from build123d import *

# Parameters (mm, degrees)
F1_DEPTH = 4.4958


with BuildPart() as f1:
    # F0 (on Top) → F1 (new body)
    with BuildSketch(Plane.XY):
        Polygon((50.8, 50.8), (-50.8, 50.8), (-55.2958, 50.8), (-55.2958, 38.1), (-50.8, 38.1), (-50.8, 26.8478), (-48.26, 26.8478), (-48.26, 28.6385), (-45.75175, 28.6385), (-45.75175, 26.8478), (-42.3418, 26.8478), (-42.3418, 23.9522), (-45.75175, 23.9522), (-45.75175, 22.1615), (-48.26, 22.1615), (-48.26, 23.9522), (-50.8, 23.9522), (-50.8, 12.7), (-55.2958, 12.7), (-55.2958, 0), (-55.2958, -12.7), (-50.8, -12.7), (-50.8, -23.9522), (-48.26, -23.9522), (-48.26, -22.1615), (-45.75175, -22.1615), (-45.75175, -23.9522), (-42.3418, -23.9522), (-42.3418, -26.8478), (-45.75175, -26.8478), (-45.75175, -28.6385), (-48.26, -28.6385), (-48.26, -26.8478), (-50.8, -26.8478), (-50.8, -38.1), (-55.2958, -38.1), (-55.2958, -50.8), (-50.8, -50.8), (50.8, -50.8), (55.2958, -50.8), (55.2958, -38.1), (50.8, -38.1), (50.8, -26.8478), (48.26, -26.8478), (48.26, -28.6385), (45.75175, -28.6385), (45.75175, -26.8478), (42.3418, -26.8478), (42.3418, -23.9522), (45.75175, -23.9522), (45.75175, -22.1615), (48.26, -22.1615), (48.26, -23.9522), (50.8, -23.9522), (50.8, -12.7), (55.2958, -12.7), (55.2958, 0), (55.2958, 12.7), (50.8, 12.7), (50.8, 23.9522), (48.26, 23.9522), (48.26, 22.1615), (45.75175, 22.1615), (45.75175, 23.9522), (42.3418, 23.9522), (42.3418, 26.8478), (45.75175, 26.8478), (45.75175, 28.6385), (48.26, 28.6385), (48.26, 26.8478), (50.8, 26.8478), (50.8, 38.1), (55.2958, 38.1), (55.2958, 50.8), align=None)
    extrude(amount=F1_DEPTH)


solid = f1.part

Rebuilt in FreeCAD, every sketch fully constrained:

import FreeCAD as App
import Part
import Sketcher
from FreeCAD import Vector
Q = App.Units.Quantity

doc = App.newDocument("Part")
params = doc.addObject("Spreadsheet::Sheet", "Params")
for row, (alias, value) in enumerate([
    ("sketch1_height", "1 in"),
    ("sketch1_width", "0.1 in"),
    ("sketch1_height2", "0.5 in"),
    ("sketch1_width2", "0.177 in"),
    ("sketch1_height3", "0.443 in"),
    ("pad1_length", "0.177 in"),
], start=1):
    params.set(f"A{row}", alias)
    params.set(f"B{row}", "=" + value)
    params.setAlias(f"B{row}", alias)

body = doc.addObject("PartDesign::Body", "Body")

sketch1 = body.newObject("Sketcher::SketchObject", "Sketch")
sketch1.AttachmentSupport = (doc.getObject("XY_Plane"), [""])
sketch1.MapMode = "FlatFace"
sketch1.addGeometry([
    Part.LineSegment(Vector(-55.2958, 50.8, 0), Vector(-55.2958, 38.1, 0)),
    Part.LineSegment(Vector(-55.2958, 38.1, 0), Vector(-50.8, 38.1, 0)),
    Part.LineSegment(Vector(-50.8, 38.1, 0), Vector(-50.8, 26.8478, 0)),
    Part.LineSegment(Vector(-50.8, 26.8478, 0), Vector(-48.26, 26.8478, 0)),
    Part.LineSegment(Vector(-48.26, 26.8478, 0), Vector(-48.26, 28.6385, 0)),
    Part.LineSegment(Vector(-48.26, 28.6385, 0), Vector(-45.75175, 28.6385, 0)),
    Part.LineSegment(Vector(-45.75175, 28.6385, 0), Vector(-45.75175, 26.8478, 0)),
    Part.LineSegment(Vector(-45.75175, 26.8478, 0), Vector(-42.3418, 26.8478, 0)),
    Part.LineSegment(Vector(-42.3418, 26.8478, 0), Vector(-42.3418, 23.9522, 0)),
    Part.LineSegment(Vector(-42.3418, 23.9522, 0), Vector(-45.75175, 23.9522, 0)),
    Part.LineSegment(Vector(-45.75175, 23.9522, 0), Vector(-45.75175, 22.1615, 0)),
    Part.LineSegment(Vector(-45.75175, 22.1615, 0), Vector(-48.26, 22.1615, 0)),
    Part.LineSegment(Vector(-48.26, 22.1615, 0), Vector(-48.26, 23.9522, 0)),
    Part.LineSegment(Vector(-48.26, 23.9522, 0), Vector(-50.8, 23.9522, 0)),
    Part.LineSegment(Vector(-50.8, 23.9522, 0), Vector(-50.8, 12.7, 0)),
    Part.LineSegment(Vector(-50.8, 12.7, 0), Vector(-55.2958, 12.7, 0)),
    Part.LineSegment(Vector(-55.2958, 12.7, 0), Vector(-55.2958, -12.7, 0)),
    Part.LineSegment(Vector(-55.2958, -12.7, 0), Vector(-50.8, -12.7, 0)),
    Part.LineSegment(Vector(-50.8, -12.7, 0), Vector(-50.8, -23.9522, 0)),
    Part.LineSegment(Vector(-50.8, -23.9522, 0), Vector(-48.26, -23.9522, 0)),
    Part.LineSegment(Vector(-48.26, -23.9522, 0), Vector(-48.26, -22.1615, 0)),
    Part.LineSegment(Vector(-48.26, -22.1615, 0), Vector(-45.75175, -22.1615, 0)),
    Part.LineSegment(Vector(-45.75175, -22.1615, 0), Vector(-45.75175, -23.9522, 0)),
    Part.LineSegment(Vector(-45.75175, -23.9522, 0), Vector(-42.3418, -23.9522, 0)),
    Part.LineSegment(Vector(-42.3418, -23.9522, 0), Vector(-42.3418, -26.8478, 0)),
    Part.LineSegment(Vector(-42.3418, -26.8478, 0), Vector(-45.75175, -26.8478, 0)),
    Part.LineSegment(Vector(-45.75175, -26.8478, 0), Vector(-45.75175, -28.6385, 0)),
    Part.LineSegment(Vector(-45.75175, -28.6385, 0), Vector(-48.26, -28.6385, 0)),
    Part.LineSegment(Vector(-48.26, -28.6385, 0), Vector(-48.26, -26.8478, 0)),
    Part.LineSegment(Vector(-48.26, -26.8478, 0), Vector(-50.8, -26.8478, 0)),
    Part.LineSegment(Vector(-50.8, -26.8478, 0), Vector(-50.8, -38.1, 0)),
    Part.LineSegment(Vector(-50.8, -38.1, 0), Vector(-55.2958, -38.1, 0)),
    Part.LineSegment(Vector(-55.2958, -38.1, 0), Vector(-55.2958, -50.8, 0)),
    Part.LineSegment(Vector(-55.2958, -50.8, 0), Vector(55.2958, -50.8, 0)),
    Part.LineSegment(Vector(55.2958, -50.8, 0), Vector(55.2958, -38.1, 0)),
    Part.LineSegment(Vector(55.2958, -38.1, 0), Vector(50.8, -38.1, 0)),
    Part.LineSegment(Vector(50.8, -38.1, 0), Vector(50.8, -26.8478, 0)),
    Part.LineSegment(Vector(50.8, -26.8478, 0), Vector(48.26, -26.8478, 0)),
    Part.LineSegment(Vector(48.26, -26.8478, 0), Vector(48.26, -28.6385, 0)),
    Part.LineSegment(Vector(48.26, -28.6385, 0), Vector(45.75175, -28.6385, 0)),
    Part.LineSegment(Vector(45.75175, -28.6385, 0), Vector(45.75175, -26.8478, 0)),
    Part.LineSegment(Vector(45.75175, -26.8478, 0), Vector(42.3418, -26.8478, 0)),
    Part.LineSegment(Vector(42.3418, -26.8478, 0), Vector(42.3418, -23.9522, 0)),
    Part.LineSegment(Vector(42.3418, -23.9522, 0), Vector(45.75175, -23.9522, 0)),
    Part.LineSegment(Vector(45.75175, -23.9522, 0), Vector(45.75175, -22.1615, 0)),
    Part.LineSegment(Vector(45.75175, -22.1615, 0), Vector(48.26, -22.1615, 0)),
    Part.LineSegment(Vector(48.26, -22.1615, 0), Vector(48.26, -23.9522, 0)),
    Part.LineSegment(Vector(48.26, -23.9522, 0), Vector(50.8, -23.9522, 0)),
    Part.LineSegment(Vector(50.8, -23.9522, 0), Vector(50.8, -12.7, 0)),
    Part.LineSegment(Vector(50.8, -12.7, 0), Vector(55.2958, -12.7, 0)),
    Part.LineSegment(Vector(55.2958, -12.7, 0), Vector(55.2958, 12.7, 0)),
    Part.LineSegment(Vector(55.2958, 12.7, 0), Vector(50.8, 12.7, 0)),
    Part.LineSegment(Vector(50.8, 12.7, 0), Vector(50.8, 23.9522, 0)),
    Part.LineSegment(Vector(50.8, 23.9522, 0), Vector(48.26, 23.9522, 0)),
    Part.LineSegment(Vector(48.26, 23.9522, 0), Vector(48.26, 22.1615, 0)),
    Part.LineSegment(Vector(48.26, 22.1615, 0), Vector(45.75175, 22.1615, 0)),
    Part.LineSegment(Vector(45.75175, 22.1615, 0), Vector(45.75175, 23.9522, 0)),
    Part.LineSegment(Vector(45.75175, 23.9522, 0), Vector(42.3418, 23.9522, 0)),
    Part.LineSegment(Vector(42.3418, 23.9522, 0), Vector(42.3418, 26.8478, 0)),
    Part.LineSegment(Vector(42.3418, 26.8478, 0), Vector(45.75175, 26.8478, 0)),
    Part.LineSegment(Vector(45.75175, 26.8478, 0), Vector(45.75175, 28.6385, 0)),
    Part.LineSegment(Vector(45.75175, 28.6385, 0), Vector(48.26, 28.6385, 0)),
    Part.LineSegment(Vector(48.26, 28.6385, 0), Vector(48.26, 26.8478, 0)),
    Part.LineSegment(Vector(48.26, 26.8478, 0), Vector(50.8, 26.8478, 0)),
    Part.LineSegment(Vector(50.8, 26.8478, 0), Vector(50.8, 38.1, 0)),
    Part.LineSegment(Vector(50.8, 38.1, 0), Vector(55.2958, 38.1, 0)),
    Part.LineSegment(Vector(55.2958, 38.1, 0), Vector(55.2958, 50.8, 0)),
    Part.LineSegment(Vector(55.2958, 50.8, 0), Vector(-55.2958, 50.8, 0)),
], False)
sketch1.addConstraint([
    Sketcher.Constraint("Coincident", 0, 2, 1, 1),
    Sketcher.Constraint("Coincident", 1, 2, 2, 1),
    Sketcher.Constraint("Coincident", 2, 2, 3, 1),
    Sketcher.Constraint("Coincident", 3, 2, 4, 1),
    Sketcher.Constraint("Coincident", 4, 2, 5, 1),
    Sketcher.Constraint("Coincident", 5, 2, 6, 1),
    Sketcher.Constraint("Coincident", 6, 2, 7, 1),
    Sketcher.Constraint("Coincident", 7, 2, 8, 1),
    Sketcher.Constraint("Coincident", 8, 2, 9, 1),
    Sketcher.Constraint("Coincident", 9, 2, 10, 1),
    Sketcher.Constraint("Coincident", 10, 2, 11, 1),
    Sketcher.Constraint("Coincident", 11, 2, 12, 1),
    Sketcher.Constraint("Coincident", 12, 2, 13, 1),
    Sketcher.Constraint("Coincident", 13, 2, 14, 1),
    Sketcher.Constraint("Coincident", 14, 2, 15, 1),
    Sketcher.Constraint("Coincident", 15, 2, 16, 1),
    Sketcher.Constraint("Coincident", 16, 2, 17, 1),
    Sketcher.Constraint("Coincident", 17, 2, 18, 1),
    Sketcher.Constraint("Coincident", 18, 2, 19, 1),
    Sketcher.Constraint("Coincident", 19, 2, 20, 1),
    Sketcher.Constraint("Coincident", 20, 2, 21, 1),
    Sketcher.Constraint("Coincident", 21, 2, 22, 1),
    Sketcher.Constraint("Coincident", 22, 2, 23, 1),
    Sketcher.Constraint("Coincident", 23, 2, 24, 1),
    Sketcher.Constraint("Coincident", 24, 2, 25, 1),
    Sketcher.Constraint("Coincident", 25, 2, 26, 1),
    Sketcher.Constraint("Coincident", 26, 2, 27, 1),
    Sketcher.Constraint("Coincident", 27, 2, 28, 1),
    Sketcher.Constraint("Coincident", 28, 2, 29, 1),
    Sketcher.Constraint("Coincident", 29, 2, 30, 1),
    Sketcher.Constraint("Coincident", 30, 2, 31, 1),
    Sketcher.Constraint("Coincident", 31, 2, 32, 1),
    Sketcher.Constraint("Coincident", 32, 2, 33, 1),
    Sketcher.Constraint("Coincident", 33, 2, 34, 1),
    Sketcher.Constraint("Coincident", 34, 2, 35, 1),
    Sketcher.Constraint("Coincident", 35, 2, 36, 1),
    Sketcher.Constraint("Coincident", 36, 2, 37, 1),
    Sketcher.Constraint("Coincident", 37, 2, 38, 1),
    Sketcher.Constraint("Coincident", 38, 2, 39, 1),
    Sketcher.Constraint("Coincident", 39, 2, 40, 1),
    Sketcher.Constraint("Coincident", 40, 2, 41, 1),
    Sketcher.Constraint("Coincident", 41, 2, 42, 1),
    Sketcher.Constraint("Coincident", 42, 2, 43, 1),
    Sketcher.Constraint("Coincident", 43, 2, 44, 1),
    Sketcher.Constraint("Coincident", 44, 2, 45, 1),
    Sketcher.Constraint("Coincident", 45, 2, 46, 1),
    Sketcher.Constraint("Coincident", 46, 2, 47, 1),
    Sketcher.Constraint("Coincident", 47, 2, 48, 1),
    Sketcher.Constraint("Coincident", 48, 2, 49, 1),
    Sketcher.Constraint("Coincident", 49, 2, 50, 1),
    Sketcher.Constraint("Coincident", 50, 2, 51, 1),
    Sketcher.Constraint("Coincident", 51, 2, 52, 1),
    Sketcher.Constraint("Coincident", 52, 2, 53, 1),
    Sketcher.Constraint("Coincident", 53, 2, 54, 1),
    Sketcher.Constraint("Coincident", 54, 2, 55, 1),
    Sketcher.Constraint("Coincident", 55, 2, 56, 1),
    Sketcher.Constraint("Coincident", 56, 2, 57, 1),
    Sketcher.Constraint("Coincident", 57, 2, 58, 1),
    Sketcher.Constraint("Coincident", 58, 2, 59, 1),
    Sketcher.Constraint("Coincident", 59, 2, 60, 1),
    Sketcher.Constraint("Coincident", 60, 2, 61, 1),
    Sketcher.Constraint("Coincident", 61, 2, 62, 1),
    Sketcher.Constraint("Coincident", 62, 2, 63, 1),
    Sketcher.Constraint("Coincident", 63, 2, 64, 1),
    Sketcher.Constraint("Coincident", 64, 2, 65, 1),
    Sketcher.Constraint("Coincident", 65, 2, 66, 1),
    Sketcher.Constraint("Coincident", 66, 2, 67, 1),
    Sketcher.Constraint("Coincident", 67, 2, 0, 1),
    Sketcher.Constraint("Vertical", 0),
    Sketcher.Constraint("Horizontal", 1),
    Sketcher.Constraint("Vertical", 2),
    Sketcher.Constraint("Horizontal", 3),
    Sketcher.Constraint("Vertical", 4),
    Sketcher.Constraint("Horizontal", 5),
    Sketcher.Constraint("Vertical", 6),
    Sketcher.Constraint("Horizontal", 7),
    Sketcher.Constraint("Vertical", 8),
    Sketcher.Constraint("Horizontal", 9),
    Sketcher.Constraint("Vertical", 10),
    Sketcher.Constraint("Horizontal", 11),
    Sketcher.Constraint("Vertical", 12),
    Sketcher.Constraint("Horizontal", 13),
    Sketcher.Constraint("Vertical", 14),
    Sketcher.Constraint("Horizontal", 15),
    Sketcher.Constraint("Vertical", 16),
    Sketcher.Constraint("Horizontal", 17),
    Sketcher.Constraint("Vertical", 18),
    Sketcher.Constraint("Horizontal", 19),
    Sketcher.Constraint("Vertical", 20),
    Sketcher.Constraint("Horizontal", 21),
    Sketcher.Constraint("Vertical", 22),
    Sketcher.Constraint("Horizontal", 23),
    Sketcher.Constraint("Vertical", 24),
    Sketcher.Constraint("Horizontal", 25),
    Sketcher.Constraint("Vertical", 26),
    Sketcher.Constraint("Horizontal", 27),
    Sketcher.Constraint("Vertical", 28),
    Sketcher.Constraint("Horizontal", 29),
    Sketcher.Constraint("Vertical", 30),
    Sketcher.Constraint("Horizontal", 31),
    Sketcher.Constraint("Vertical", 32),
    Sketcher.Constraint("Horizontal", 33),
    Sketcher.Constraint("Vertical", 34),
    Sketcher.Constraint("Horizontal", 35),
    Sketcher.Constraint("Vertical", 36),
    Sketcher.Constraint("Horizontal", 37),
    Sketcher.Constraint("Vertical", 38),
    Sketcher.Constraint("Horizontal", 39),
    Sketcher.Constraint("Vertical", 40),
    Sketcher.Constraint("Horizontal", 41),
    Sketcher.Constraint("Vertical", 42),
    Sketcher.Constraint("Horizontal", 43),
    Sketcher.Constraint("Vertical", 44),
    Sketcher.Constraint("Horizontal", 45),
    Sketcher.Constraint("Vertical", 46),
    Sketcher.Constraint("Horizontal", 47),
    Sketcher.Constraint("Vertical", 48),
    Sketcher.Constraint("Horizontal", 49),
    Sketcher.Constraint("Vertical", 50),
    Sketcher.Constraint("Horizontal", 51),
    Sketcher.Constraint("Vertical", 52),
    Sketcher.Constraint("Horizontal", 53),
    Sketcher.Constraint("Vertical", 54),
    Sketcher.Constraint("Horizontal", 55),
    Sketcher.Constraint("Vertical", 56),
    Sketcher.Constraint("Horizontal", 57),
    Sketcher.Constraint("Vertical", 58),
    Sketcher.Constraint("Horizontal", 59),
    Sketcher.Constraint("Vertical", 60),
    Sketcher.Constraint("Horizontal", 61),
    Sketcher.Constraint("Vertical", 62),
    Sketcher.Constraint("Horizontal", 63),
    Sketcher.Constraint("Vertical", 64),
    Sketcher.Constraint("Horizontal", 65),
    Sketcher.Constraint("Vertical", 66),
    Sketcher.Constraint("Horizontal", 67),
    Sketcher.Constraint("Symmetric", 0, 2, 34, 2, -1, 1),
    Sketcher.Constraint("Symmetric", 2, 2, 36, 2, -1, 1),
    Sketcher.Constraint("Symmetric", 4, 2, 38, 2, -1, 1),
    Sketcher.Constraint("Symmetric", 6, 2, 40, 2, -1, 1),
    Sketcher.Constraint("Symmetric", 8, 2, 42, 2, -1, 1),
    Sketcher.Constraint("Symmetric", 10, 2, 44, 2, -1, 1),
    Sketcher.Constraint("Symmetric", 12, 2, 46, 2, -1, 1),
    Sketcher.Constraint("Symmetric", 14, 2, 48, 2, -1, 1),
    Sketcher.Constraint("Symmetric", 16, 2, 50, 2, -1, 1),
    Sketcher.Constraint("Symmetric", 18, 2, 52, 2, -1, 1),
    Sketcher.Constraint("Symmetric", 20, 2, 54, 2, -1, 1),
    Sketcher.Constraint("Symmetric", 22, 2, 56, 2, -1, 1),
    Sketcher.Constraint("Symmetric", 24, 2, 58, 2, -1, 1),
    Sketcher.Constraint("Symmetric", 26, 2, 60, 2, -1, 1),
    Sketcher.Constraint("Symmetric", 28, 2, 62, 2, -1, 1),
    Sketcher.Constraint("Symmetric", 30, 2, 64, 2, -1, 1),
    Sketcher.Constraint("Symmetric", 32, 2, 66, 2, -1, 1),
    Sketcher.Constraint("Symmetric", 31, 2, 34, 2, -2),
    Sketcher.Constraint("Symmetric", 29, 2, 36, 2, -2),
    Sketcher.Constraint("Symmetric", 27, 2, 38, 2, -2),
    Sketcher.Constraint("Symmetric", 25, 2, 40, 2, -2),
    Sketcher.Constraint("Symmetric", 23, 2, 42, 2, -2),
    Sketcher.Constraint("Symmetric", 21, 2, 44, 2, -2),
    Sketcher.Constraint("Symmetric", 19, 2, 46, 2, -2),
    Sketcher.Constraint("Symmetric", 17, 2, 48, 2, -2),
    Sketcher.Constraint("Horizontal", 3, 2, 6, 2),
    Sketcher.Constraint("Horizontal", 9, 2, 12, 2),
    Sketcher.Constraint("Vertical", 6, 2, 9, 2),
    Sketcher.Constraint("Vertical", 4, 2, 11, 2),
    Sketcher.Constraint("Vertical", 2, 2, 13, 2),
    Sketcher.Constraint("Vertical", 0, 2, 15, 2),
    Sketcher.Constraint("Equal", 6, 10),
    Sketcher.Constraint("Equal", 2, 14),
    Sketcher.Constraint("DistanceY", 16, 2, 16, 1, Q("1 in")),
    Sketcher.Constraint("DistanceX", 3, 1, 3, 2, Q("0.1 in")),
    Sketcher.Constraint("DistanceY", 0, 2, 0, 1, Q("0.5 in")),
    Sketcher.Constraint("DistanceX", 1, 2, -1, 1, Q("2 in")),
    Sketcher.Constraint("DistanceY", 32, 2, -1, 1, Q("2 in")),
    Sketcher.Constraint("DistanceX", 1, 1, 1, 2, Q("0.177 in")),
    Sketcher.Constraint("DistanceY", 2, 2, 2, 1, Q("0.443 in")),
    Sketcher.Constraint("DistanceY", 4, 1, 4, 2, Q("0.0705 in")),
    Sketcher.Constraint("DistanceX", 7, 2, -1, 1, Q("1.667 in")),
    Sketcher.Constraint("DistanceX", 5, 1, 5, 2, 2.50825),
])
sketch1.setExpression("Constraints[169]", "Params.sketch1_height")
sketch1.setExpression("Constraints[170]", "Params.sketch1_width")
sketch1.setExpression("Constraints[171]", "Params.sketch1_height2")
sketch1.setExpression("Constraints[174]", "Params.sketch1_width2")
sketch1.setExpression("Constraints[175]", "Params.sketch1_height3")
pad1 = body.newObject("PartDesign::Pad", "Pad")
pad1.Profile = sketch1
pad1.setExpression("Length", "Params.pad1_length")

doc.recompute()
